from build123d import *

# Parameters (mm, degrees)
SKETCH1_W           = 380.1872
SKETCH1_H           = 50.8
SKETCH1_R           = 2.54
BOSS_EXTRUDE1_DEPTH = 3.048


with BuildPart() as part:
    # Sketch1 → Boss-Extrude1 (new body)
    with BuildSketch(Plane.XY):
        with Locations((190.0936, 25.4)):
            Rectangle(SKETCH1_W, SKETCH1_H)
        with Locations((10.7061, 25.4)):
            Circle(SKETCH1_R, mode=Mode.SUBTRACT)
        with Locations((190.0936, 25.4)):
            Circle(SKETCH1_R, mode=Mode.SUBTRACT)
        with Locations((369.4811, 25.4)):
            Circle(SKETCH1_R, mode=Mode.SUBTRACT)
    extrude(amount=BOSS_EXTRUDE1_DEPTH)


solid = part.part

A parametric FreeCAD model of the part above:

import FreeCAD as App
import Part
import Sketcher
from FreeCAD import Vector
Q = App.Units.Quantity

doc = App.newDocument("Part")
body = doc.addObject("PartDesign::Body", "Body")

# Sketch on XY plane
sketch1 = body.newObject("Sketcher::SketchObject", "Sketch")
sketch1.AttachmentSupport = (doc.getObject("XY_Plane"), [""])
sketch1.MapMode = "FlatFace"
sketch1.addGeometry([
    Part.LineSegment(Vector(0, 50.8, 0), Vector(0, 0, 0)),  # 0
    Part.LineSegment(Vector(0, 0, 0), Vector(380.1872, 0, 0)),  # 1
    Part.LineSegment(Vector(380.1872, 0, 0), Vector(380.1872, 50.8, 0)),  # 2
    Part.LineSegment(Vector(380.1872, 50.8, 0), Vector(0, 50.8, 0)),  # 3
    Part.Circle(Vector(10.7061, 25.4, 0), Vector(0, 0, 1), 2.54),  # 4
    Part.Circle(Vector(190.0936, 25.4, 0), Vector(0, 0, 1), 2.54),  # 5
    Part.Circle(Vector(369.4811, 25.4, 0), Vector(0, 0, 1), 2.54),  # 6
], False)
sketch1.addConstraint([
    Sketcher.Constraint("Coincident", 0, 2, 1, 1),
    Sketcher.Constraint("Coincident", 1, 2, 2, 1),
    Sketcher.Constraint("Coincident", 2, 2, 3, 1),
    Sketcher.Constraint("Coincident", 3, 2, 0, 1),
    Sketcher.Constraint("Vertical", 0),
    Sketcher.Constraint("Horizontal", 1),
    Sketcher.Constraint("Vertical", 2),
    Sketcher.Constraint("Horizontal", 3),
    Sketcher.Constraint("Coincident", 0, 2, -1, 1),
    Sketcher.Constraint("Equal", 4, 5),
    Sketcher.Constraint("Equal", 5, 6),
    Sketcher.Constraint("Horizontal", 4, 3, 5, 3),
    Sketcher.Constraint("Horizontal", 5, 3, 6, 3),
    Sketcher.Constraint("Diameter", 4, Q("0.2 in")),
    Sketcher.Constraint("DistanceY", 0, 2, 0, 1, Q("2 in")),
    Sketcher.Constraint("DistanceY", -1, 1, 4, 3, Q("1 in")),
    Sketcher.Constraint("DistanceX", 1, 1, 1, 2, Q("14.968 in")),
    Sketcher.Constraint("DistanceX", -1, 1, 5, 3, Q("7.484 in")),
    Sketcher.Constraint("DistanceX", 4, 3, 5, 3, Q("7.0625 in")),
    Sketcher.Constraint("DistanceX", 5, 3, 6, 3, Q("7.0625 in")),
])
pad1 = body.newObject("PartDesign::Pad", "Pad")
pad1.Profile = sketch1
pad1.Length = Q("0.12 in")

doc.recompute()
